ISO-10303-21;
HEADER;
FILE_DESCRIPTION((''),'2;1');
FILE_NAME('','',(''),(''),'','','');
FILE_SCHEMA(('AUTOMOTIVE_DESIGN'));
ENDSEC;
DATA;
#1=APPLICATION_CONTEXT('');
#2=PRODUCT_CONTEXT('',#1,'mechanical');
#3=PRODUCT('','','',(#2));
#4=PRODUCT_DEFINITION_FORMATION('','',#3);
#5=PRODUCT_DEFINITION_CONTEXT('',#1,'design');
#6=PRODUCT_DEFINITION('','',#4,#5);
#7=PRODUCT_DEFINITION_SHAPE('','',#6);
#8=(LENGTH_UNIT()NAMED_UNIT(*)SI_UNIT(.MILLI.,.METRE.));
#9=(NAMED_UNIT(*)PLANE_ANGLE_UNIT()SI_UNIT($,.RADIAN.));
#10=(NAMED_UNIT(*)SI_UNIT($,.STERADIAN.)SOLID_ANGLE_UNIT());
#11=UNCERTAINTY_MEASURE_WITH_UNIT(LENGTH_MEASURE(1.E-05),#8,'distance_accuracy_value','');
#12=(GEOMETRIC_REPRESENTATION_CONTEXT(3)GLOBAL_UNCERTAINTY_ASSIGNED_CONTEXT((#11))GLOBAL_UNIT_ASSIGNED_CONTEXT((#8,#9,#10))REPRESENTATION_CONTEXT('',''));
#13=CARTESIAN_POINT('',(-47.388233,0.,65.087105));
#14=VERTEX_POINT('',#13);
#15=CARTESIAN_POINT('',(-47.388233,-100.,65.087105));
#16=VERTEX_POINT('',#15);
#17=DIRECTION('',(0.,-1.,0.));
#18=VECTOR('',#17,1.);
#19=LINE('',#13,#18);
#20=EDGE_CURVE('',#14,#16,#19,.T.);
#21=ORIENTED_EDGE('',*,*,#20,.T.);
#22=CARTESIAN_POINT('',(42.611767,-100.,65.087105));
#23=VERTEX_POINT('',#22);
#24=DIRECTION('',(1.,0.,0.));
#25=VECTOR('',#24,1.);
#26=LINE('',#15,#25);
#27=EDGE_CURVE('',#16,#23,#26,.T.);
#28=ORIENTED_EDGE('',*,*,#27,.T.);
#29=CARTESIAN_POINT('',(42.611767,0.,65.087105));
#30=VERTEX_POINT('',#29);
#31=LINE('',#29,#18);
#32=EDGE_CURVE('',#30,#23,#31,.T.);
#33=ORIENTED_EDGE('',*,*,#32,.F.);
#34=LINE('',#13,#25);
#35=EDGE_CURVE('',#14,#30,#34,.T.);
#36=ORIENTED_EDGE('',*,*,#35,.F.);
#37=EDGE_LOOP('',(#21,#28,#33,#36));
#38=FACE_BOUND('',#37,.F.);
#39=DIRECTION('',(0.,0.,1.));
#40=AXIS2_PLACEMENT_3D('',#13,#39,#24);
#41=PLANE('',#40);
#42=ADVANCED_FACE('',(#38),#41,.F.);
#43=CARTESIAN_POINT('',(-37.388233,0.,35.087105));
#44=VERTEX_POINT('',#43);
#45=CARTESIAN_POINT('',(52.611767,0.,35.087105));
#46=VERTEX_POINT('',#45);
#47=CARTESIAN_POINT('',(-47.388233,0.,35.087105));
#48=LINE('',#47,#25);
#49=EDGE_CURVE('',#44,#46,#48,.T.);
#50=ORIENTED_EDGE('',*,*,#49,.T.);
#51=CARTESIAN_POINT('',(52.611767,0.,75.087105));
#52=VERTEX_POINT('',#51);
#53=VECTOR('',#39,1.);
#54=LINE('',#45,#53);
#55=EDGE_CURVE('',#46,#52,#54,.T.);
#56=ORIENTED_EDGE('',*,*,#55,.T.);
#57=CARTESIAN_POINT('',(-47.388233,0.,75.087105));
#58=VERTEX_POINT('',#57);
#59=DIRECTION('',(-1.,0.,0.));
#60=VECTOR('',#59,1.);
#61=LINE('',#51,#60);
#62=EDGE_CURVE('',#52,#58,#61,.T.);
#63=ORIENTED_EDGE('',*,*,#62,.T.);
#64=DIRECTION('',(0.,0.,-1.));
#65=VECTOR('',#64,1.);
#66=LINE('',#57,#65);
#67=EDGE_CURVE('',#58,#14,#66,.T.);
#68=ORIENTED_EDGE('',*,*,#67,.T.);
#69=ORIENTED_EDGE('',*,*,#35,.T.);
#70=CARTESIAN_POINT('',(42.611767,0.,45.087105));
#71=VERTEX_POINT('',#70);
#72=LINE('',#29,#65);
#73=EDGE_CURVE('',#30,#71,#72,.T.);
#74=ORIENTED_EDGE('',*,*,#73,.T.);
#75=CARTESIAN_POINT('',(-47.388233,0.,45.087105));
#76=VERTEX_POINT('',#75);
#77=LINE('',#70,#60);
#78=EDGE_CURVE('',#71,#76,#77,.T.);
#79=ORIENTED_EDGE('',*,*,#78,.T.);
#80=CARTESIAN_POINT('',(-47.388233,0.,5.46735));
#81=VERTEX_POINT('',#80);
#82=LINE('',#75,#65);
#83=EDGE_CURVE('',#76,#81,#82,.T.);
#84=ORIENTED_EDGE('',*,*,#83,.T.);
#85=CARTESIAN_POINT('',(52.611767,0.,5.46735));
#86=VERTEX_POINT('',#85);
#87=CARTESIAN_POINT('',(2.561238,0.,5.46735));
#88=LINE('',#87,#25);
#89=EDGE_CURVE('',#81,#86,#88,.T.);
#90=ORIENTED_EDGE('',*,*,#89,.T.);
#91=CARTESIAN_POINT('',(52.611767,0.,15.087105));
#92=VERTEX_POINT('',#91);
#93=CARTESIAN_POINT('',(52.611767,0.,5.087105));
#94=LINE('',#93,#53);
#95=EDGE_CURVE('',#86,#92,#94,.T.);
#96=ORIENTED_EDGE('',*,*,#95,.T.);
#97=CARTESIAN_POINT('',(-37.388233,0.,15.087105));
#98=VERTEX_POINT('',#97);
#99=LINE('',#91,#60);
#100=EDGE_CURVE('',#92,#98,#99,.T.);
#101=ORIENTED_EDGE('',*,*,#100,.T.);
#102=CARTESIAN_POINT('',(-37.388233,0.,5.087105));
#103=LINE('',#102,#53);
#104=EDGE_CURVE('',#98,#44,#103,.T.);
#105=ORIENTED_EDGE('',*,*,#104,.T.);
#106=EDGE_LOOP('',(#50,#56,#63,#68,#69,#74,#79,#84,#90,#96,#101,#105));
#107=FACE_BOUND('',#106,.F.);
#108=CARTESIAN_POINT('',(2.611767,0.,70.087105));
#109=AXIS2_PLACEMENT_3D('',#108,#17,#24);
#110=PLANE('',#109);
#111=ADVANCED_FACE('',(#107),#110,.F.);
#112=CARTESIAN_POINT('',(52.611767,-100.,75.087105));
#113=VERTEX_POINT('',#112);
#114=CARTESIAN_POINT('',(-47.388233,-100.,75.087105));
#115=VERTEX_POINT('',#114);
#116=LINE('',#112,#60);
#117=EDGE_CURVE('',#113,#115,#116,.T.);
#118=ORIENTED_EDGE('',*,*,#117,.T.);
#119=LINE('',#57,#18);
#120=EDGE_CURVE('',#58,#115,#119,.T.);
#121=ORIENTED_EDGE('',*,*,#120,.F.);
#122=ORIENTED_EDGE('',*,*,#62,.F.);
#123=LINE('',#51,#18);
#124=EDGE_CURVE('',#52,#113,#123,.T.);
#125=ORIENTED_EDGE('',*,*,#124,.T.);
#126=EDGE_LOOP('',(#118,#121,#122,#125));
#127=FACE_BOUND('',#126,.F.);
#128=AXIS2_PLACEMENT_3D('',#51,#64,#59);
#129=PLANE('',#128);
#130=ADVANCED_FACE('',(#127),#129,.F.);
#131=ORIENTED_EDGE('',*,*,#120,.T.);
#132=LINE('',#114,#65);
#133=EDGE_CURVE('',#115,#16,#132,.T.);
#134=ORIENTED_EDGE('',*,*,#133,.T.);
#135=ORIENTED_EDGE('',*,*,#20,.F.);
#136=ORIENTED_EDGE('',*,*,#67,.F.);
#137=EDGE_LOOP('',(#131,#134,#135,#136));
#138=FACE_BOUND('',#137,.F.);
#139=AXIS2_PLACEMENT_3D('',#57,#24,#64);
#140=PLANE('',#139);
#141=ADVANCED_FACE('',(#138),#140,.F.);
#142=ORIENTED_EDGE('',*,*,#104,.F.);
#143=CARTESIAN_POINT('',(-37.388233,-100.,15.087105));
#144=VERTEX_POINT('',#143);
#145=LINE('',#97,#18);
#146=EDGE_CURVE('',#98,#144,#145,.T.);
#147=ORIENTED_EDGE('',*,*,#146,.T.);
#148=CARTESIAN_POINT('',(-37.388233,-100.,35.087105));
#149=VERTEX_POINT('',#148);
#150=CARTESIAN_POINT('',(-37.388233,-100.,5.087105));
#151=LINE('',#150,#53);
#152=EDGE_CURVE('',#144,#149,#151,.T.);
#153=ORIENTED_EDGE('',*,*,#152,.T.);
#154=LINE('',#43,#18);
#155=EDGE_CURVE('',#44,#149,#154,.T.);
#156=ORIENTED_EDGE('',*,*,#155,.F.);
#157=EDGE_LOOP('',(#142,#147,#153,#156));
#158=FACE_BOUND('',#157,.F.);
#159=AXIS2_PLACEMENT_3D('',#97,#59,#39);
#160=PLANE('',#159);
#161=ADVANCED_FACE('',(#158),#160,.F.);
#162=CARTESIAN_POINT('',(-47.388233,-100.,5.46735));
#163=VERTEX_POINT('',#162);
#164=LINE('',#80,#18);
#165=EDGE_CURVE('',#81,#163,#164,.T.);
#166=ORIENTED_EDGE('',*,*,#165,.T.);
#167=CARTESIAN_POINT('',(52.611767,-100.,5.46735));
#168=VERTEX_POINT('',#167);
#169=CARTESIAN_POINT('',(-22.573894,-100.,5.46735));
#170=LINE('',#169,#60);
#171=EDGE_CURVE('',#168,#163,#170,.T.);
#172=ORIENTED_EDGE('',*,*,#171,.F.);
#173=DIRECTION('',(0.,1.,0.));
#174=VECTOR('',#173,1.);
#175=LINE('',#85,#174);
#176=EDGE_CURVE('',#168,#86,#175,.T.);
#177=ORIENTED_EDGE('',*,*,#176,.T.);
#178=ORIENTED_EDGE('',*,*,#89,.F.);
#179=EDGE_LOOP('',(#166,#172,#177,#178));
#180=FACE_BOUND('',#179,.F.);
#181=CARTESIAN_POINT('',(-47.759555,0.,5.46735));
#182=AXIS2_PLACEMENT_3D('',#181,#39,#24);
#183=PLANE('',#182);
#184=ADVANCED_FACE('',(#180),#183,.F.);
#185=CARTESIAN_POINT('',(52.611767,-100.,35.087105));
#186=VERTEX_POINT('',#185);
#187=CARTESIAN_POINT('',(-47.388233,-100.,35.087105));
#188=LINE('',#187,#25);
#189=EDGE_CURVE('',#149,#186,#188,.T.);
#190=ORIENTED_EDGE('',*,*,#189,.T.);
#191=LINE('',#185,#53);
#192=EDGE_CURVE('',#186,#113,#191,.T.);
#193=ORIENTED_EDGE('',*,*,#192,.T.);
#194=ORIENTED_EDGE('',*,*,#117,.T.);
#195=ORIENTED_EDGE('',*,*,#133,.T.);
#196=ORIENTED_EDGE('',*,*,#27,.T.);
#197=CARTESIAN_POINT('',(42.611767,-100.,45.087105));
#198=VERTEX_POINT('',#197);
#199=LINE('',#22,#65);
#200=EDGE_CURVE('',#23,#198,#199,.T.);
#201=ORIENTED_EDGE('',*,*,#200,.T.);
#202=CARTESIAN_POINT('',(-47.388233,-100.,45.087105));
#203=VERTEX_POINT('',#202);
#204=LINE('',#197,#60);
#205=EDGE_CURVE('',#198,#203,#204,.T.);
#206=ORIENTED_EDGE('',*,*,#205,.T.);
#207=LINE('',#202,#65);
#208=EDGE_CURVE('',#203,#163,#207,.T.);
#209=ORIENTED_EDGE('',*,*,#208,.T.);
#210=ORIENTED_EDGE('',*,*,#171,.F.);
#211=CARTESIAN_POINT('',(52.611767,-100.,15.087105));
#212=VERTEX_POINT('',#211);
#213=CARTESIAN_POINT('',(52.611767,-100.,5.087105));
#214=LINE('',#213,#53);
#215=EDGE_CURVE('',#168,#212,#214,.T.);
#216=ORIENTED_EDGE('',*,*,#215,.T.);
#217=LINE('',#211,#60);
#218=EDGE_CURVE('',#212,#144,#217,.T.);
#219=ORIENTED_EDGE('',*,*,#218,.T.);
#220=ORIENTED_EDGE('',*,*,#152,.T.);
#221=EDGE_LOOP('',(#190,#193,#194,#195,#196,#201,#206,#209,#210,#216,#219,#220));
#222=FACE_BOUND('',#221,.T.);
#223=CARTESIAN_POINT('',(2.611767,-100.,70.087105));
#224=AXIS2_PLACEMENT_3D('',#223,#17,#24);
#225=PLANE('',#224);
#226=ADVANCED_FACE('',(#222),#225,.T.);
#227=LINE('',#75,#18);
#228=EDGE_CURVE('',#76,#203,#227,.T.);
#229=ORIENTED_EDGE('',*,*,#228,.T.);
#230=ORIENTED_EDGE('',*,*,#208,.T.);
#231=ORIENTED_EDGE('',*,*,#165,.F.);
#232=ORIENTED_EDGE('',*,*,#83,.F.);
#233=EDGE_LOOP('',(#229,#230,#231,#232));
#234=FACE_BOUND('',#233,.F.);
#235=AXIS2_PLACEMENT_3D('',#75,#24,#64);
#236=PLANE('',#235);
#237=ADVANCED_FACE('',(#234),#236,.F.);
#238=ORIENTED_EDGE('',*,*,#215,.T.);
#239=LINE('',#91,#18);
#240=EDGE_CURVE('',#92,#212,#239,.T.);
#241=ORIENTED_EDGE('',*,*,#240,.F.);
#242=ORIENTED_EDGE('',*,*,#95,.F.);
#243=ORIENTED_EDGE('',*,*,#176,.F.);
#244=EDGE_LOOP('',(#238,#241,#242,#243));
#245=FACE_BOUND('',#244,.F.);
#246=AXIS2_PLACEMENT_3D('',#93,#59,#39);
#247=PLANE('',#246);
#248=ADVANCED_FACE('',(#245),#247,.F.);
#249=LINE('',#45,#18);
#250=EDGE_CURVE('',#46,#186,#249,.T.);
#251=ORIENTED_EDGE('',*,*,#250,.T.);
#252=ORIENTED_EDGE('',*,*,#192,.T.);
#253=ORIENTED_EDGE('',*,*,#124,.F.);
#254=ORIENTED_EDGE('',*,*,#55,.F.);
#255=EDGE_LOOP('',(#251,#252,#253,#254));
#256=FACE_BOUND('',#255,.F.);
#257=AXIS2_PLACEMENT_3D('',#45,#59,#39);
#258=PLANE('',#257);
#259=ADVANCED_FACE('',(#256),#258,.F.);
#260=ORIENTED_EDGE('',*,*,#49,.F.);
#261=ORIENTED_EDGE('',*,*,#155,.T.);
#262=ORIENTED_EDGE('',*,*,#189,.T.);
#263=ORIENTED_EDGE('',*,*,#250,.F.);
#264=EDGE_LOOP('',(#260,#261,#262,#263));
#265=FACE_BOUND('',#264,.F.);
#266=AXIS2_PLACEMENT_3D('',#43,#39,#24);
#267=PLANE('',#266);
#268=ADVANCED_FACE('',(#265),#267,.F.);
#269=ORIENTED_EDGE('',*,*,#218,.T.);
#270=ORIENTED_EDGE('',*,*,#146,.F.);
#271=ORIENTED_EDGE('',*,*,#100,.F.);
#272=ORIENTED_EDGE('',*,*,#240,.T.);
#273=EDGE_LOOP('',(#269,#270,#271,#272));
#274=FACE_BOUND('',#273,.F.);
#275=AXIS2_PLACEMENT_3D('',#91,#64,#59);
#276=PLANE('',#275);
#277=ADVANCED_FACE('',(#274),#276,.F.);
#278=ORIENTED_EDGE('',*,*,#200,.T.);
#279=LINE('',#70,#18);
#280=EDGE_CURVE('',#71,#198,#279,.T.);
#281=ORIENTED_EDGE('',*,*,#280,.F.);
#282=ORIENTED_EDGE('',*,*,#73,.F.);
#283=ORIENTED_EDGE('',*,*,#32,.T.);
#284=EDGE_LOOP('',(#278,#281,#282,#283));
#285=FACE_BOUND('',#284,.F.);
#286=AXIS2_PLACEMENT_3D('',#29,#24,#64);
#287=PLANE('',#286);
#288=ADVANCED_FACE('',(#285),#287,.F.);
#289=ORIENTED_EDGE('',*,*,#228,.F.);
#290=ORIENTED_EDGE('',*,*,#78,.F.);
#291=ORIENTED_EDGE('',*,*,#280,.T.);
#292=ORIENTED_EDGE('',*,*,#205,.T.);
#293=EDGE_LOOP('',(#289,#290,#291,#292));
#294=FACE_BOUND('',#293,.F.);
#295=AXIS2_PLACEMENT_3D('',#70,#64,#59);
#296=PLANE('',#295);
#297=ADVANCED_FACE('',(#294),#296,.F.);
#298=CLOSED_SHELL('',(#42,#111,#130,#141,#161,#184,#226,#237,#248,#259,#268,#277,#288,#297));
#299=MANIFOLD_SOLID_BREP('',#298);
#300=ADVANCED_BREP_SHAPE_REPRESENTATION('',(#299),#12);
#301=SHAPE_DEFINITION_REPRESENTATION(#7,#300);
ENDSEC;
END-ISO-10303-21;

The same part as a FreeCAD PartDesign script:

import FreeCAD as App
import Part
import Sketcher
Q = App.Units.Quantity

doc = App.newDocument("Part")
params = doc.addObject("Spreadsheet::Sheet", "Params")
for row, (alias, value) in enumerate([
    ("sketch1_width", "100 mm"),
    ("sketch1_width2", "90 mm"),
    ("sketch1_height", "10 mm"),
    ("sketch1_height2", "20 mm"),
    ("sketch1_height3", "40 mm"),
    ("pad1_length", "100 mm"),
    ("pocket1_length", "200 mm"),
], start=1):
    params.set(f"A{row}", alias)
    params.set(f"B{row}", "=" + value)
    params.setAlias(f"B{row}", alias)

body = doc.addObject("PartDesign::Body", "Body")

# Sketch on XZ plane
sketch1 = body.newObject("Sketcher::SketchObject", "Sketch")
sketch1.AttachmentSupport = (doc.getObject("XZ_Plane"), [""])
sketch1.MapMode = "FlatFace"
sketch1.addGeometry([
    Part.LineSegment(App.Vector(52.611767, 75.087105, 0), App.Vector(-47.388233, 75.087105, 0)),  # 0
    Part.LineSegment(App.Vector(-47.388233, 75.087105, 0), App.Vector(-47.388233, 65.087105, 0)),  # 1
    Part.LineSegment(App.Vector(-47.388233, 65.087105, 0), App.Vector(42.611767, 65.087105, 0)),  # 2
    Part.LineSegment(App.Vector(42.611767, 65.087105, 0), App.Vector(42.611767, 45.087105, 0)),  # 3
    Part.LineSegment(App.Vector(42.611767, 45.087105, 0), App.Vector(-47.388233, 45.087105, 0)),  # 4
    Part.LineSegment(App.Vector(-47.388233, 45.087105, 0), App.Vector(-47.388233, 5.087105, 0)),  # 5
    Part.LineSegment(App.Vector(-47.388233, 5.087105, 0), App.Vector(52.611767, 5.087105, 0)),  # 6
    Part.LineSegment(App.Vector(52.611767, 5.087105, 0), App.Vector(52.611767, 15.087105, 0)),  # 7
    Part.LineSegment(App.Vector(52.611767, 15.087105, 0), App.Vector(-37.388233, 15.087105, 0)),  # 8
    Part.LineSegment(App.Vector(-37.388233, 15.087105, 0), App.Vector(-37.388233, 35.087105, 0)),  # 9
    Part.LineSegment(App.Vector(-37.388233, 35.087105, 0), App.Vector(52.611767, 35.087105, 0)),  # 10
    Part.LineSegment(App.Vector(52.611767, 35.087105, 0), App.Vector(52.611767, 75.087105, 0)),  # 11
], False)
sketch1.addConstraint([
    Sketcher.Constraint("Coincident", 0, 2, 1, 1),
    Sketcher.Constraint("Coincident", 1, 2, 2, 1),
    Sketcher.Constraint("Coincident", 2, 2, 3, 1),
    Sketcher.Constraint("Coincident", 3, 2, 4, 1),
    Sketcher.Constraint("Coincident", 4, 2, 5, 1),
    Sketcher.Constraint("Coincident", 5, 2, 6, 1),
    Sketcher.Constraint("Coincident", 6, 2, 7, 1),
    Sketcher.Constraint("Coincident", 7, 2, 8, 1),
    Sketcher.Constraint("Coincident", 8, 2, 9, 1),
    Sketcher.Constraint("Coincident", 9, 2, 10, 1),
    Sketcher.Constraint("Coincident", 10, 2, 11, 1),
    Sketcher.Constraint("Coincident", 11, 2, 0, 1),
    Sketcher.Constraint("Horizontal", 0),
    Sketcher.Constraint("Vertical", 1),
    Sketcher.Constraint("Horizontal", 2),
    Sketcher.Constraint("Vertical", 3),
    Sketcher.Constraint("Horizontal", 4),
    Sketcher.Constraint("Vertical", 5),
    Sketcher.Constraint("Horizontal", 6),
    Sketcher.Constraint("Vertical", 7),
    Sketcher.Constraint("Horizontal", 8),
    Sketcher.Constraint("Vertical", 9),
    Sketcher.Constraint("Horizontal", 10),
    Sketcher.Constraint("Vertical", 11),
    Sketcher.Constraint("Vertical", 1, 2, 4, 2),
    Sketcher.Constraint("Vertical", 7, 2, 10, 2),
    Sketcher.Constraint("Equal", 4, 8),
    Sketcher.Constraint("Equal", 1, 7),
    Sketcher.Constraint("Equal", 3, 9),
    Sketcher.Constraint("DistanceX", 0, 2, 0, 1, Q("100 mm")),
    Sketcher.Constraint("DistanceX", 2, 1, 2, 2, Q("90 mm")),
    Sketcher.Constraint("DistanceY", 1, 2, 1, 1, Q("10 mm")),
    Sketcher.Constraint("DistanceY", 3, 2, 3, 1, Q("20 mm")),
    Sketcher.Constraint("DistanceY", 5, 2, 5, 1, Q("40 mm")),
    Sketcher.Constraint("DistanceX", 0, 2, -1, 1, Q("47.388233 mm")),
    Sketcher.Constraint("DistanceY", -1, 1, 0, 2, Q("75.087105 mm")),
])
sketch1.setExpression("Constraints[29]", "Params.sketch1_width")
sketch1.setExpression("Constraints[30]", "Params.sketch1_width2")
sketch1.setExpression("Constraints[31]", "Params.sketch1_height")
sketch1.setExpression("Constraints[32]", "Params.sketch1_height2")
sketch1.setExpression("Constraints[33]", "Params.sketch1_height3")
pad1 = body.newObject("PartDesign::Pad", "Pad")
pad1.Profile = sketch1
pad1.setExpression("Length", "Params.pad1_length")

# Sketch on XZ plane
sketch2 = body.newObject("Sketcher::SketchObject", "Sketch001")
sketch2.AttachmentSupport = (doc.getObject("XZ_Plane"), [""])
sketch2.MapMode = "FlatFace"
sketch2.addGeometry([
    Part.LineSegment(App.Vector(-47.759555, 5.46735, 0), App.Vector(-47.759555, -24.966184, 0)),
    Part.LineSegment(App.Vector(-47.759555, -24.966184, 0), App.Vector(52.882031, -24.966184, 0)),
    Part.LineSegment(App.Vector(52.882031, -24.966184, 0), App.Vector(52.882031, 5.46735, 0)),
    Part.LineSegment(App.Vector(52.882031, 5.46735, 0), App.Vector(-47.759555, 5.46735, 0)),
], False)
sketch2.addConstraint([
    Sketcher.Constraint("Coincident", 0, 2, 1, 1),
    Sketcher.Constraint("Coincident", 1, 2, 2, 1),
    Sketcher.Constraint("Coincident", 2, 2, 3, 1),
    Sketcher.Constraint("Coincident", 3, 2, 0, 1),
    Sketcher.Constraint("Vertical", 0),
    Sketcher.Constraint("Horizontal", 1),
    Sketcher.Constraint("Vertical", 2),
    Sketcher.Constraint("Horizontal", 3),
    Sketcher.Constraint("DistanceX", 1, 1, 1, 2, Q("100.641586 mm")),
    Sketcher.Constraint("DistanceY", 0, 2, 0, 1, Q("30.433534 mm")),
    Sketcher.Constraint("DistanceX", -1, 1, 1, 2, Q("52.882031 mm")),
    Sketcher.Constraint("DistanceY", -1, 1, 2, 2, Q("5.46735 mm")),
])
pocket1 = body.newObject("PartDesign::Pocket", "Pocket")
pocket1.Profile = sketch2
pocket1.setExpression("Length", "Params.pocket1_length")
pocket1.Reversed = True

doc.recompute()
